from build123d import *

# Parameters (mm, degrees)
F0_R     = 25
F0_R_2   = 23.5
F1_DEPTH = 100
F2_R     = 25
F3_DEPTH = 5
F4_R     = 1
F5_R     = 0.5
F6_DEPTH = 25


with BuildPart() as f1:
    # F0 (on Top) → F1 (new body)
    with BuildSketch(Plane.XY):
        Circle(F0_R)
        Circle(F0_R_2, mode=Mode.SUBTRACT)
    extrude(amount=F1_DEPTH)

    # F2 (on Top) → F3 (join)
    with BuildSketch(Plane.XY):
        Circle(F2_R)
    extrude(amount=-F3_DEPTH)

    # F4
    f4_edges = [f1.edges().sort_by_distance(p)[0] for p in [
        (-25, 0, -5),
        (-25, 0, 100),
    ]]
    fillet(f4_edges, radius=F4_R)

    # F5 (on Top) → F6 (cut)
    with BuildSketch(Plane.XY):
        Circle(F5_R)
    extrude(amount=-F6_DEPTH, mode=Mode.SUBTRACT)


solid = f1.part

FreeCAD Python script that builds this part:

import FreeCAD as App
import Part
import Sketcher
from FreeCAD import Vector


def edges_at(feature, points):
    """Names of the edges that pass closest to the given points."""
    edges = feature.Shape.Edges
    near = lambda p: min(range(len(edges)), key=lambda i: edges[i].distToShape(Part.Vertex(*p))[0])
    return sorted({f"Edge{near(p) + 1}" for p in points})

doc = App.newDocument("Part")
body = doc.addObject("PartDesign::Body", "Body")

# Sketch on XY plane
sketch1 = body.newObject("Sketcher::SketchObject", "Sketch")
sketch1.AttachmentSupport = (doc.getObject("XY_Plane"), [""])
sketch1.MapMode = "FlatFace"
sketch1.addGeometry(Part.Circle(Vector(0, 0, 0), Vector(0, 0, 1), 25), False)
sketch1.addGeometry(Part.Circle(Vector(0, 0, 0), Vector(0, 0, 1), 24), False)
sketch1.addConstraint(Sketcher.Constraint("Coincident", 0, 3, -1, 1))
sketch1.addConstraint(Sketcher.Constraint("Coincident", 1, 3, -1, 1))
sketch1.addConstraint(Sketcher.Constraint("Diameter", 0, 50.0))
sketch1.addConstraint(Sketcher.Constraint("Diameter", 1, 47.0))
pad1 = body.newObject("PartDesign::Pad", "Pad")
pad1.Profile = sketch1
pad1.Length = 100

# Sketch on XY plane
sketch2 = body.newObject("Sketcher::SketchObject", "Sketch001")
sketch2.AttachmentSupport = (doc.getObject("XY_Plane"), [""])
sketch2.MapMode = "FlatFace"
sketch2.addGeometry(Part.Circle(Vector(0, 0, 0), Vector(0, 0, 1), 25), False)
sketch2.addConstraint(Sketcher.Constraint("Coincident", 0, 3, -1, 1))
sketch2.addConstraint(Sketcher.Constraint("Diameter", 0, 50.0))
pad2 = body.newObject("PartDesign::Pad", "Pad001")
pad2.Profile = sketch2
pad2.Length = 5
pad2.Reversed = True
doc.recompute()

fillet = body.newObject("PartDesign::Fillet", "Fillet")
fillet.Base = (pad2, edges_at(pad2, [(-25, 0, -5), (-25, 0, 100)]))
fillet.Radius = 1

# Sketch on XY plane
sketch3 = body.newObject("Sketcher::SketchObject", "Sketch002")
sketch3.AttachmentSupport = (doc.getObject("XY_Plane"), [""])
sketch3.MapMode = "FlatFace"
sketch3.addGeometry(Part.Circle(Vector(0, 0, 0), Vector(0, 0, 1), 0.5), False)
sketch3.addConstraint(Sketcher.Constraint("Coincident", 0, 3, -1, 1))
sketch3.addConstraint(Sketcher.Constraint("Diameter", 0, 1.0))
pocket1 = body.newObject("PartDesign::Pocket", "Pocket")
pocket1.Profile = sketch3
pocket1.Length = 25

doc.recompute()
